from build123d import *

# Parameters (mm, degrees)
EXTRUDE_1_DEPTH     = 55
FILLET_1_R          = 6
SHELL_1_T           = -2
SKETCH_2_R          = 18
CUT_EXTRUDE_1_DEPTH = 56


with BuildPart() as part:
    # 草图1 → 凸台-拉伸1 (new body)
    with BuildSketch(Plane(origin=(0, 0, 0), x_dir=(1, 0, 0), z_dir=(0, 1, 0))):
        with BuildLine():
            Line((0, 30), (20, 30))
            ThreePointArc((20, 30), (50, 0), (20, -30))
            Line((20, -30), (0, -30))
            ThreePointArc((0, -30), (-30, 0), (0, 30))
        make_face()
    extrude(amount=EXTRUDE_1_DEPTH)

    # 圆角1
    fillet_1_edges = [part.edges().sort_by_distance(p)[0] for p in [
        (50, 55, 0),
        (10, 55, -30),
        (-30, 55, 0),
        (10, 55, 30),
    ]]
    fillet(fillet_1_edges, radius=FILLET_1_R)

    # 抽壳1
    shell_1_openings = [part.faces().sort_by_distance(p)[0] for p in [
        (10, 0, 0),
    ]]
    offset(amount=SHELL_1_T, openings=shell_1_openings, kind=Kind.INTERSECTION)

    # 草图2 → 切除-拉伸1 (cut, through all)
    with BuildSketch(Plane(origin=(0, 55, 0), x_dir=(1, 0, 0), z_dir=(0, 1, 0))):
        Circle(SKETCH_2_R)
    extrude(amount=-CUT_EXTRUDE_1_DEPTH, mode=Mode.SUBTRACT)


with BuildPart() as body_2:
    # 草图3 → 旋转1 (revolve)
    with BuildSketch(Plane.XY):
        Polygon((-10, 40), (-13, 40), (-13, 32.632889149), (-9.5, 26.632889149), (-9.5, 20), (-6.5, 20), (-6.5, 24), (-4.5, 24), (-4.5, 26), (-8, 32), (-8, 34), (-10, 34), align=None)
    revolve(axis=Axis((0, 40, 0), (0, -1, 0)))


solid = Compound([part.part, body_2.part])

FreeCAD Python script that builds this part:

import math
import FreeCAD as App
import Part
import Sketcher
Q = App.Units.Quantity


def edges_at(feature, points):
    """Names of the edges that pass closest to the given points."""
    edges = feature.Shape.Edges
    near = lambda p: min(range(len(edges)), key=lambda i: edges[i].distToShape(Part.Vertex(*p))[0])
    return sorted({f"Edge{near(p) + 1}" for p in points})


def faces_at(feature, points):
    """Names of the faces that lie closest to the given points."""
    faces = feature.Shape.Faces
    near = lambda p: min(range(len(faces)), key=lambda i: faces[i].distToShape(Part.Vertex(*p))[0])
    return sorted({f"Face{near(p) + 1}" for p in points})


def add_polygon(sketch, points):
    """Adds a closed chain of lines whose ends are joined by coincident constraints."""
    first, n = sketch.GeometryCount, len(points)
    for a, b in zip(points, points[1:] + points[:1]):
        sketch.addGeometry(Part.LineSegment(App.Vector(*a, 0), App.Vector(*b, 0)), False)
    for i in range(n):
        sketch.addConstraint(Sketcher.Constraint("Coincident", first + i, 2, first + (i + 1) % n, 1))

doc = App.newDocument("Part")
params = doc.addObject("Spreadsheet::Sheet", "Params")
for row, (alias, value) in enumerate([
    ("sketch1_radius", "30 mm"),
    ("sketch1_width", "20 mm"),
    ("pad1_length", "55 mm"),
    ("fillet_radius", "6 mm"),
    ("thickness_wall", "2 mm"),
    ("sketch2_diameter", "36 mm"),
    ("sketch3_width", "3 mm"),
    ("sketch3_width2", "2 mm"),
    ("sketch3_height", "4 mm"),
    ("sketch3_height2", "6 mm"),
    ("revolution_angle", "360 deg"),
], start=1):
    params.set(f"A{row}", alias)
    params.set(f"B{row}", "=" + value)
    params.setAlias(f"B{row}", alias)

body = doc.addObject("PartDesign::Body", "Body")

# Sketch on XZ plane
sketch1 = doc.addObject("Sketcher::SketchObject", "Sketch")
body.addObject(sketch1)
sketch1.AttachmentSupport = (doc.XZ_Plane, [""])
sketch1.MapMode = "FlatFace"
sketch1.addGeometry([
    Part.LineSegment(App.Vector(20, -30, 0), App.Vector(0, -30, 0)),
    Part.ArcOfCircle(Part.Circle(App.Vector(0, 0, 0), App.Vector(0, 0, 1), 30), math.radians(90), math.radians(270)),
    Part.LineSegment(App.Vector(0, 30, 0), App.Vector(20, 30, 0)),
    Part.ArcOfCircle(Part.Circle(App.Vector(20, 0, 0), App.Vector(0, 0, 1), 30), math.radians(-90), math.radians(90)),
], False)
sketch1.addConstraint([
    Sketcher.Constraint("Tangent", 0, 2, 1, 2),
    Sketcher.Constraint("Tangent", 1, 1, 2, 1),
    Sketcher.Constraint("Tangent", 2, 2, 3, 2),
    Sketcher.Constraint("Tangent", 3, 1, 0, 1),
    Sketcher.Constraint("Horizontal", 0),
    Sketcher.Constraint("Horizontal", 2),
    Sketcher.Constraint("Coincident", 1, 3, -1, 1),
    Sketcher.Constraint("Radius", 1, Q("30 mm")),
    Sketcher.Constraint("DistanceX", 0, 2, 0, 1, Q("20 mm")),
])
sketch1.setExpression("Constraints[7]", "Params.sketch1_radius")
sketch1.setExpression("Constraints[8]", "Params.sketch1_width")
pad1 = doc.addObject("PartDesign::Pad", "Pad")
body.addObject(pad1)
pad1.Profile = sketch1
pad1.setExpression("Length", "Params.pad1_length")
pad1.Reversed = True
doc.recompute()

fillet = doc.addObject("PartDesign::Fillet", "Fillet")
body.addObject(fillet)
fillet.Base = (pad1, edges_at(pad1, [
    (50, 55, 0),
    (10, 55, -30),
    (-30, 55, 0),
    (10, 55, 30),
]))
fillet.setExpression("Radius", "Params.fillet_radius")
doc.recompute()

thickness = doc.addObject("PartDesign::Thickness", "Thickness")
body.addObject(thickness)
thickness.Base = (fillet, faces_at(fillet, [(10, 0, 0)]))
thickness.setExpression("Value", "Params.thickness_wall")
thickness.Reversed = True
thickness.Join = "Intersection"

# Sketch on XZ plane
sketch2 = doc.addObject("Sketcher::SketchObject", "Sketch001")
body.addObject(sketch2)
sketch2.AttachmentSupport = (doc.XZ_Plane, [""])
sketch2.MapMode = "FlatFace"
sketch2.AttachmentOffset = App.Placement(App.Vector(0, 0, -55), App.Rotation())
sketch2.addGeometry(Part.Circle(App.Vector(0, 0, 0), App.Vector(0, 0, 1), 18), False)
sketch2.addConstraint([
    Sketcher.Constraint("Coincident", 0, 3, -1, 1),
    Sketcher.Constraint("Diameter", 0, Q("36 mm")),
])
sketch2.setExpression("Constraints[1]", "Params.sketch2_diameter")
pocket1 = doc.addObject("PartDesign::Pocket", "Pocket")
body.addObject(pocket1)
pocket1.Profile = sketch2
pocket1.Type = "ThroughAll"
pocket1.Reversed = True
body2 = doc.addObject("PartDesign::Body", "Body001")

# Sketch on XY plane
sketch3 = doc.addObject("Sketcher::SketchObject", "Sketch002")
body2.addObject(sketch3)
sketch3.AttachmentSupport = (doc.getObject("XY_Plane001"), [""])
sketch3.MapMode = "FlatFace"
add_polygon(sketch3, [(-10, 40), (-13, 40), (-13, 32.6), (-9.5, 26.6), (-9.5, 20), (-6.5, 20), (-6.5, 24), (-4.5, 24), (-4.5, 26), (-8, 32), (-8, 34), (-10, 34)])  # lines 0-11
sketch3.addConstraint([
    Sketcher.Constraint("Horizontal", 0),
    Sketcher.Constraint("Vertical", 1),
    Sketcher.Constraint("Vertical", 3),
    Sketcher.Constraint("Horizontal", 4),
    Sketcher.Constraint("Vertical", 5),
    Sketcher.Constraint("Horizontal", 6),
    Sketcher.Constraint("Vertical", 7),
    Sketcher.Constraint("Vertical", 9),
    Sketcher.Constraint("Horizontal", 10),
    Sketcher.Constraint("Vertical", 11),
    Sketcher.Constraint("Parallel", 2, 8),
    Sketcher.Constraint("Equal", 0, 4),
    Sketcher.Constraint("Equal", 6, 10),
    Sketcher.Constraint("Equal", 10, 7),
    Sketcher.Constraint("Equal", 7, 9),
    Sketcher.Constraint("DistanceX", 0, 2, 0, 1, Q("3 mm")),
    Sketcher.Constraint("DistanceX", 6, 1, 6, 2, Q("2 mm")),
    Sketcher.Constraint("DistanceY", 5, 1, 5, 2, Q("4 mm")),
    Sketcher.Constraint("DistanceY", 11, 1, 11, 2, Q("6 mm")),
    Sketcher.Constraint("DistanceX", 0, 2, -1, 1, Q("13 mm")),
    Sketcher.Constraint("DistanceY", -1, 1, 0, 2, Q("40 mm")),
    Sketcher.Constraint("DistanceY", -1, 1, 3, 2, Q("20 mm")),
    Sketcher.Constraint("DistanceX", 2, 2, -1, 1, Q("9.5 mm")),
    Sketcher.Constraint("DistanceY", 1, 2, 1, 1, Q("7.367111 mm")),
])
sketch3.setExpression("Constraints[27]", "Params.sketch3_width")
sketch3.setExpression("Constraints[28]", "Params.sketch3_width2")
sketch3.setExpression("Constraints[29]", "Params.sketch3_height")
sketch3.setExpression("Constraints[30]", "Params.sketch3_height2")
revolution = doc.addObject("PartDesign::Revolution", "Revolution")
body2.addObject(revolution)
revolution.Profile = sketch3
revolution.ReferenceAxis = (sketch3, ["V_Axis"])
revolution.setExpression("Angle", "Params.revolution_angle")

doc.recompute()
